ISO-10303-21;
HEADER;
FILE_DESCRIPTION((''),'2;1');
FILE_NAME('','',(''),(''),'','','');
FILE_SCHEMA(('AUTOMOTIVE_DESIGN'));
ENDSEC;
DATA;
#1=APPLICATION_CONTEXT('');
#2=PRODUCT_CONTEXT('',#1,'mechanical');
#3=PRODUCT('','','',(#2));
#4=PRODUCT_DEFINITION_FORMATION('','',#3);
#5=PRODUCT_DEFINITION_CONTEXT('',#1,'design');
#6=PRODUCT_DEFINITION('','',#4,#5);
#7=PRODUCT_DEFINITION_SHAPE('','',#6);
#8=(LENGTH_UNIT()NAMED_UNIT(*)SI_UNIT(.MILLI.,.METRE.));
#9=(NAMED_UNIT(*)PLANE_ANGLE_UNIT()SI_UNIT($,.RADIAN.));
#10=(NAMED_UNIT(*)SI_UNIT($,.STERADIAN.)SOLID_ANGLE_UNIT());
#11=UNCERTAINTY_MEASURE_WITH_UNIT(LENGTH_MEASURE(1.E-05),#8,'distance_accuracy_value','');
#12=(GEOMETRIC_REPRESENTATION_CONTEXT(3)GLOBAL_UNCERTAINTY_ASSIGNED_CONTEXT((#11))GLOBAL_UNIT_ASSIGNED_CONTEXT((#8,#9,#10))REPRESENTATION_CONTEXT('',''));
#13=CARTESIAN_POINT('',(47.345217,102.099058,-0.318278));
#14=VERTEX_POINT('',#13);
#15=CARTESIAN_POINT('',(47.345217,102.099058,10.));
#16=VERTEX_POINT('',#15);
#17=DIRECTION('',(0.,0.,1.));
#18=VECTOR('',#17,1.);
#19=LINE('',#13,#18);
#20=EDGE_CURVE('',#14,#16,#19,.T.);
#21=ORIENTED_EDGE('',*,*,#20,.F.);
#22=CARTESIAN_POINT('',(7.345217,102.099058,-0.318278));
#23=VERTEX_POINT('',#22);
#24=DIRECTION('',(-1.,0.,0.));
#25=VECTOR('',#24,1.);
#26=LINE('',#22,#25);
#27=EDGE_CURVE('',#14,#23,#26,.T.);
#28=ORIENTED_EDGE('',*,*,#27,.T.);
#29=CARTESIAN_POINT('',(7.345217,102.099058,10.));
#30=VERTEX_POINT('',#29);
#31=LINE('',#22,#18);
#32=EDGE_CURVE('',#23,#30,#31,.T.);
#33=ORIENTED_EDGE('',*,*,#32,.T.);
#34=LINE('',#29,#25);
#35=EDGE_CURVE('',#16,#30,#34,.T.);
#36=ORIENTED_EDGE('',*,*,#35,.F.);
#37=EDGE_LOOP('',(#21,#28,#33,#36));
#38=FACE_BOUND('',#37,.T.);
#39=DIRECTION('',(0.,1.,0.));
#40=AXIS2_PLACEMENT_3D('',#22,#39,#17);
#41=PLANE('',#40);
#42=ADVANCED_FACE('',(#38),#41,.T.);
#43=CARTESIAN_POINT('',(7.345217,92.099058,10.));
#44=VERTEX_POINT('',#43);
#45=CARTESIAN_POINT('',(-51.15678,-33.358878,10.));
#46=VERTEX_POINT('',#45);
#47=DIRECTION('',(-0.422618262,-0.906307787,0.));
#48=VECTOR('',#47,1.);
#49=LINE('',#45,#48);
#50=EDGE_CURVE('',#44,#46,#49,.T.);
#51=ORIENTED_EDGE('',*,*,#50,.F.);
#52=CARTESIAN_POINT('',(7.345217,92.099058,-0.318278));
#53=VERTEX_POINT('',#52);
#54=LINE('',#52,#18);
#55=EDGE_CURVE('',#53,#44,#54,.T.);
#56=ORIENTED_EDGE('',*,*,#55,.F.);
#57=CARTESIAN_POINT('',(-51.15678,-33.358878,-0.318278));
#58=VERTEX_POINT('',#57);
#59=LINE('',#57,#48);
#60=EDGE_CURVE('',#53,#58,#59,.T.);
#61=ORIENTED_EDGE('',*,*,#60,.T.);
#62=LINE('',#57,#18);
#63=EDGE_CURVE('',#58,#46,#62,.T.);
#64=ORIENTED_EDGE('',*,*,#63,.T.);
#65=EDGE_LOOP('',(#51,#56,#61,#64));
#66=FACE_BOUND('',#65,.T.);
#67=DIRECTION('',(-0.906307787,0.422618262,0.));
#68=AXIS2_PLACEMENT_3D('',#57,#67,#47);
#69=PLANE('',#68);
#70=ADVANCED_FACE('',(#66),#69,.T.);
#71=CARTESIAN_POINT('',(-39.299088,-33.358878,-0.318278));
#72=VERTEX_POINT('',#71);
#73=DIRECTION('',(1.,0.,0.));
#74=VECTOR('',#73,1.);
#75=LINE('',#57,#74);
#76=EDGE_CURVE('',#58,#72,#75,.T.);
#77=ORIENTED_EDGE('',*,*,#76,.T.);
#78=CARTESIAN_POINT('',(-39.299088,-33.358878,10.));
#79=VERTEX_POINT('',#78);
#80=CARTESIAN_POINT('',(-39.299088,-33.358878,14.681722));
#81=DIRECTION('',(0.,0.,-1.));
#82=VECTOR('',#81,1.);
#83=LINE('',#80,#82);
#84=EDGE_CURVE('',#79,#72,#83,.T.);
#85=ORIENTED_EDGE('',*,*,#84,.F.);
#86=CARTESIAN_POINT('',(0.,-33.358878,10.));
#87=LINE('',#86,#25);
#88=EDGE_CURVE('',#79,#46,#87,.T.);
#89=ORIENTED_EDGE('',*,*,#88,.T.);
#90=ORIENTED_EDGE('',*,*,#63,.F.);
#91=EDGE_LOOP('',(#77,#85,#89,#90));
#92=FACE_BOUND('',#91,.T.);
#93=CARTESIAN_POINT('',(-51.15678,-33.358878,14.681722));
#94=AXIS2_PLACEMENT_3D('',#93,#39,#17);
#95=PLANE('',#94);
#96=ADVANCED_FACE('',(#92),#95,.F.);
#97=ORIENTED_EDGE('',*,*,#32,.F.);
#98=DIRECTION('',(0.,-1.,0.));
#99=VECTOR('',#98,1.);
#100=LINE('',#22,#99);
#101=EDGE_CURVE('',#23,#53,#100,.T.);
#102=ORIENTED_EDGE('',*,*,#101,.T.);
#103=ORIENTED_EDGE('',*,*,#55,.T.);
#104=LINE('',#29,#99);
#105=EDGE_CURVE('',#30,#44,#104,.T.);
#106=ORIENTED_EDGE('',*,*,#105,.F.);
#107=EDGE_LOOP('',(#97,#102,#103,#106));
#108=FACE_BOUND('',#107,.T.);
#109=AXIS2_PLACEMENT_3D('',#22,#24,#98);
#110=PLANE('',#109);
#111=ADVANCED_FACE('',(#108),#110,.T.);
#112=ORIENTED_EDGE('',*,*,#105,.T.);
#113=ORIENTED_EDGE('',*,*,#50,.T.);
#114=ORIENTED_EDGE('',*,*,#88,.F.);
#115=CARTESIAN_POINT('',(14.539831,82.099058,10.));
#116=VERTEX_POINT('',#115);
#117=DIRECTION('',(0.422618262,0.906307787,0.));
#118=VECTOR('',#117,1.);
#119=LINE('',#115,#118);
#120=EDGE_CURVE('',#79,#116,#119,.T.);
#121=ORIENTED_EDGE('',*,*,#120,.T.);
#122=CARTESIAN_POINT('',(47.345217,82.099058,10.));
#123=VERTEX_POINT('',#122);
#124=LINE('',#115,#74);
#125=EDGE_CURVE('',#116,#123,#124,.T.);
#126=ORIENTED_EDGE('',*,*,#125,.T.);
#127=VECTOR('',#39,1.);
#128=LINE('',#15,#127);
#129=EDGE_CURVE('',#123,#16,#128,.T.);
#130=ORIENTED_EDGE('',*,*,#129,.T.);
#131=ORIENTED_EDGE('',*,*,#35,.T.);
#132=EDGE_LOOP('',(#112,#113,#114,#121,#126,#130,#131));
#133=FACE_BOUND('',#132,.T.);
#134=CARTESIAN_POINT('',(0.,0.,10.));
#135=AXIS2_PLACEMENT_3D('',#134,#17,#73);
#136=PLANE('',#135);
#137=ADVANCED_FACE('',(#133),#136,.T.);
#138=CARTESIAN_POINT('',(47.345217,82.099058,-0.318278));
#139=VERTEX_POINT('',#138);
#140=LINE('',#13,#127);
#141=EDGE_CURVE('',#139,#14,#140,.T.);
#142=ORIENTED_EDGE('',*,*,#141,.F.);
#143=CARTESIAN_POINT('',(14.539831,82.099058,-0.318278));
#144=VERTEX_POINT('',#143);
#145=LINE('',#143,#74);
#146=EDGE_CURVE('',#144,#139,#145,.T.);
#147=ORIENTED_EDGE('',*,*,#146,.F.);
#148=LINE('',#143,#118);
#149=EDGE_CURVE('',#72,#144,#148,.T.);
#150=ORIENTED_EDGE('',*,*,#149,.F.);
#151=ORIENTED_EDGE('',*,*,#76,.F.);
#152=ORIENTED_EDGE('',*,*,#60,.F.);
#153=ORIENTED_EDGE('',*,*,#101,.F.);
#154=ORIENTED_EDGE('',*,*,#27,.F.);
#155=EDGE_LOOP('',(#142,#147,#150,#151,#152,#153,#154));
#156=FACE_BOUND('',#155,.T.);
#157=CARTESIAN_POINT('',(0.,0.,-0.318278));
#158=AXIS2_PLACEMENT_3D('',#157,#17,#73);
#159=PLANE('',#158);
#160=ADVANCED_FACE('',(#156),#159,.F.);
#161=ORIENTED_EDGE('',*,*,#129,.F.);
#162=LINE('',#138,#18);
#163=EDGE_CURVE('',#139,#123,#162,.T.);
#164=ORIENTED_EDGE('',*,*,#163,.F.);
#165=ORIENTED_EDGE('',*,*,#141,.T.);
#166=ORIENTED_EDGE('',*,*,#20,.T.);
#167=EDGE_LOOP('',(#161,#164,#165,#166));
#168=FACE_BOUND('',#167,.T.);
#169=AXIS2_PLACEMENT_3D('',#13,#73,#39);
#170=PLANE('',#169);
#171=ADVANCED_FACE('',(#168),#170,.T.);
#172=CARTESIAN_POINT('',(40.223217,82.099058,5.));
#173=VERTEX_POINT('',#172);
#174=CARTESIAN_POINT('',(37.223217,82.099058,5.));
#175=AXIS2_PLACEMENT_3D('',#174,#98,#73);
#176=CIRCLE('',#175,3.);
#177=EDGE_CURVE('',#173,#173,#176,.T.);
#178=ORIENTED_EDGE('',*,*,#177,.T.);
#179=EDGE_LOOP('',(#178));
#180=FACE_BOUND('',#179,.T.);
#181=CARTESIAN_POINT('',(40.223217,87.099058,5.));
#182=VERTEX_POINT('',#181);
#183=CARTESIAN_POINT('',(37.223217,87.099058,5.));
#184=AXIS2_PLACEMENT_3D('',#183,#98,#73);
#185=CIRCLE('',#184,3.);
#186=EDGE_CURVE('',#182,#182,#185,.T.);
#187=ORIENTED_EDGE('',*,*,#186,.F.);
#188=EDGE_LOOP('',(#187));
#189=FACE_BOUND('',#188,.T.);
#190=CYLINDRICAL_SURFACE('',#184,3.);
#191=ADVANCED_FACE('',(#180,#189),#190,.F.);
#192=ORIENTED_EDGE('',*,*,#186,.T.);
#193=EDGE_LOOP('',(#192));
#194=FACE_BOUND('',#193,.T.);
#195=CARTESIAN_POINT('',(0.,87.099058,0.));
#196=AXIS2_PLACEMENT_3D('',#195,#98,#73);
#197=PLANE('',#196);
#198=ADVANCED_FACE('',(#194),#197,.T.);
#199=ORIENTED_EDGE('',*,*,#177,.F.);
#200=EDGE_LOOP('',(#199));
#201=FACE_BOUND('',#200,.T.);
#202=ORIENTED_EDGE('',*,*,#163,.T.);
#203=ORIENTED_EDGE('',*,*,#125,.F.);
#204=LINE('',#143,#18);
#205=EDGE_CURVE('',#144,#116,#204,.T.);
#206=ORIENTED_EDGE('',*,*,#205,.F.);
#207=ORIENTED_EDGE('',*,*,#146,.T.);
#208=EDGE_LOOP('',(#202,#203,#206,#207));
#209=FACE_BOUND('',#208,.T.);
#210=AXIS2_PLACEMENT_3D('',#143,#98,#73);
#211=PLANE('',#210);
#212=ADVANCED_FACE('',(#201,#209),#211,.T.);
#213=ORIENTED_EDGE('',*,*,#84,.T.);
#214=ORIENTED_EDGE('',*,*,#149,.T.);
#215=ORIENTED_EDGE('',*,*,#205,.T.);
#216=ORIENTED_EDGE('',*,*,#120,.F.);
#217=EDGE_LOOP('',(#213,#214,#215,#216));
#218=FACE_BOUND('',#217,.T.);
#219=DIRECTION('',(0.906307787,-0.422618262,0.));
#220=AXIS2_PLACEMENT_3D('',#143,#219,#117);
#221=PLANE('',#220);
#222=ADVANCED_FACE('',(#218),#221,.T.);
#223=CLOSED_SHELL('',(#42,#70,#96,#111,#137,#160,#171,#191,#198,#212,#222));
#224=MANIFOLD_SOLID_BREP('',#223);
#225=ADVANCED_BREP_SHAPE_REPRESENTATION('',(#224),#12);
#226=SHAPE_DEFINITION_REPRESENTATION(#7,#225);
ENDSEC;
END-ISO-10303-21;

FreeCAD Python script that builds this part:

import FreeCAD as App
import Part
import Sketcher

V = App.Vector
Q = App.Units.Quantity

doc = App.newDocument("Part")
params = doc.addObject("Spreadsheet::Sheet", "Params")
for row, (alias, value) in enumerate([
    ("sketch1_width", "40 mm"),
    ("sketch1_height", "20 mm"),
    ("sketch1_height2", "10 mm"),
    ("pad1_length", "10 mm"),
    ("pad1_length2", "0.318278 mm"),
    ("sketch2_diameter", "6 mm"),
    ("pocket1_length", "5 mm"),
    ("pocket2_length", "15 mm"),
], start=1):
    params.set(f"A{row}", alias)
    params.set(f"B{row}", "=" + value)
    params.setAlias(f"B{row}", alias)

body = doc.addObject("PartDesign::Body", "Body")

sketch1 = doc.addObject("Sketcher::SketchObject", "Sketch")
body.addObject(sketch1)
sketch1.AttachmentSupport = (doc.XY_Plane, [""])
sketch1.MapMode = "FlatFace"
sketch1.addGeometry([
    Part.LineSegment(V(-41, -38, 0), V(15, 82, 0)),
    Part.LineSegment(V(15, 82, 0), V(47, 82, 0)),
    Part.LineSegment(V(47, 82, 0), V(47, 102, 0)),
    Part.LineSegment(V(47, 102, 0), V(7, 102, 0)),
    Part.LineSegment(V(7, 102, 0), V(7, 92, 0)),
    Part.LineSegment(V(7, 92, 0), V(-51, -33, 0)),
    Part.LineSegment(V(-51, -33, 0), V(-41, -38, 0)),
], False)
sketch1.addConstraint([
    Sketcher.Constraint("Coincident", 0, 2, 1, 1),
    Sketcher.Constraint("Coincident", 1, 2, 2, 1),
    Sketcher.Constraint("Coincident", 2, 2, 3, 1),
    Sketcher.Constraint("Coincident", 3, 2, 4, 1),
    Sketcher.Constraint("Coincident", 4, 2, 5, 1),
    Sketcher.Constraint("Coincident", 5, 2, 6, 1),
    Sketcher.Constraint("Coincident", 6, 2, 0, 1),
    Sketcher.Constraint("Horizontal", 1),
    Sketcher.Constraint("Vertical", 2),
    Sketcher.Constraint("Horizontal", 3),
    Sketcher.Constraint("Vertical", 4),
    Sketcher.Constraint("Parallel", 0, 5),
    Sketcher.Constraint("Perpendicular", 5, 6),
    Sketcher.Constraint("DistanceX", 3, 2, 3, 1, 40.0),
    Sketcher.Constraint("DistanceY", 2, 1, 2, 2, 20.0),
    Sketcher.Constraint("DistanceY", 4, 2, 4, 1, 10.0),
    Sketcher.Constraint("Angle", 0, Q("65 deg")),
    Sketcher.Constraint("DistanceX", 1, 1, 1, 2, 32.805385),
    Sketcher.Constraint("DistanceX", -1, 1, 0, 2, 14.539831),
    Sketcher.Constraint("DistanceY", -1, 1, 0, 2, 82.099058),
    Sketcher.Constraint("DistanceX", 5, 2, -1, 1, 51.15678),
])
sketch1.setExpression("Constraints[13]", "Params.sketch1_width")
sketch1.setExpression("Constraints[14]", "Params.sketch1_height")
sketch1.setExpression("Constraints[15]", "Params.sketch1_height2")
pad1 = doc.addObject("PartDesign::Pad", "Pad")
body.addObject(pad1)
pad1.Profile = sketch1
pad1.Type = "TwoLengths"
pad1.setExpression("Length", "Params.pad1_length")
pad1.setExpression("Length2", "Params.pad1_length2")

sketch2 = doc.addObject("Sketcher::SketchObject", "Sketch001")
body.addObject(sketch2)
sketch2.AttachmentSupport = (doc.XZ_Plane, [""])
sketch2.MapMode = "FlatFace"
sketch2.AttachmentOffset = App.Placement(V(0, 0, -82.099058), App.Rotation())
sketch2.addGeometry(Part.Circle(V(37.2, 5, 0), V(0, 0, 1), 3), False)
sketch2.addConstraint([
    Sketcher.Constraint("Diameter", 0, 6.0),
    Sketcher.Constraint("DistanceY", -1, 1, 0, 3, 5.0),
    Sketcher.Constraint("DistanceX", -1, 1, 0, 3, 37.223217),
])
sketch2.setExpression("Constraints[0]", "Params.sketch2_diameter")
pocket1 = doc.addObject("PartDesign::Pocket", "Pocket")
body.addObject(pocket1)
pocket1.Profile = sketch2
pocket1.setExpression("Length", "Params.pocket1_length")

sketch3 = doc.addObject("Sketcher::SketchObject", "Sketch002")
body.addObject(sketch3)
sketch3.AttachmentSupport = (doc.XY_Plane, [""])
sketch3.MapMode = "FlatFace"
sketch3.AttachmentOffset = App.Placement(V(0, 0, -0.318278), App.Rotation())
sketch3.addGeometry([
    Part.LineSegment(V(-51, -33, 0), V(-39, -33, 0)),
    Part.LineSegment(V(-39, -33, 0), V(-41, -38, 0)),
    Part.LineSegment(V(-41, -38, 0), V(-51, -33, 0)),
], False)
sketch3.addConstraint([
    Sketcher.Constraint("Coincident", 0, 2, 1, 1),
    Sketcher.Constraint("Coincident", 1, 2, 2, 1),
    Sketcher.Constraint("Coincident", 2, 2, 0, 1),
    Sketcher.Constraint("Horizontal", 0),
    Sketcher.Constraint("Perpendicular", 1, 2),
    Sketcher.Constraint("Angle", 1, Q("-115 deg")),
    Sketcher.Constraint("DistanceX", 0, 1, 0, 2, 11.857691),
    Sketcher.Constraint("DistanceX", 0, 2, -1, 1, 39.299088),
    Sketcher.Constraint("DistanceY", 0, 2, -1, 1, 33.358878),
])
pocket2 = doc.addObject("PartDesign::Pocket", "Pocket001")
body.addObject(pocket2)
pocket2.Profile = sketch3
pocket2.setExpression("Length", "Params.pocket2_length")
pocket2.Reversed = True

doc.recompute()
